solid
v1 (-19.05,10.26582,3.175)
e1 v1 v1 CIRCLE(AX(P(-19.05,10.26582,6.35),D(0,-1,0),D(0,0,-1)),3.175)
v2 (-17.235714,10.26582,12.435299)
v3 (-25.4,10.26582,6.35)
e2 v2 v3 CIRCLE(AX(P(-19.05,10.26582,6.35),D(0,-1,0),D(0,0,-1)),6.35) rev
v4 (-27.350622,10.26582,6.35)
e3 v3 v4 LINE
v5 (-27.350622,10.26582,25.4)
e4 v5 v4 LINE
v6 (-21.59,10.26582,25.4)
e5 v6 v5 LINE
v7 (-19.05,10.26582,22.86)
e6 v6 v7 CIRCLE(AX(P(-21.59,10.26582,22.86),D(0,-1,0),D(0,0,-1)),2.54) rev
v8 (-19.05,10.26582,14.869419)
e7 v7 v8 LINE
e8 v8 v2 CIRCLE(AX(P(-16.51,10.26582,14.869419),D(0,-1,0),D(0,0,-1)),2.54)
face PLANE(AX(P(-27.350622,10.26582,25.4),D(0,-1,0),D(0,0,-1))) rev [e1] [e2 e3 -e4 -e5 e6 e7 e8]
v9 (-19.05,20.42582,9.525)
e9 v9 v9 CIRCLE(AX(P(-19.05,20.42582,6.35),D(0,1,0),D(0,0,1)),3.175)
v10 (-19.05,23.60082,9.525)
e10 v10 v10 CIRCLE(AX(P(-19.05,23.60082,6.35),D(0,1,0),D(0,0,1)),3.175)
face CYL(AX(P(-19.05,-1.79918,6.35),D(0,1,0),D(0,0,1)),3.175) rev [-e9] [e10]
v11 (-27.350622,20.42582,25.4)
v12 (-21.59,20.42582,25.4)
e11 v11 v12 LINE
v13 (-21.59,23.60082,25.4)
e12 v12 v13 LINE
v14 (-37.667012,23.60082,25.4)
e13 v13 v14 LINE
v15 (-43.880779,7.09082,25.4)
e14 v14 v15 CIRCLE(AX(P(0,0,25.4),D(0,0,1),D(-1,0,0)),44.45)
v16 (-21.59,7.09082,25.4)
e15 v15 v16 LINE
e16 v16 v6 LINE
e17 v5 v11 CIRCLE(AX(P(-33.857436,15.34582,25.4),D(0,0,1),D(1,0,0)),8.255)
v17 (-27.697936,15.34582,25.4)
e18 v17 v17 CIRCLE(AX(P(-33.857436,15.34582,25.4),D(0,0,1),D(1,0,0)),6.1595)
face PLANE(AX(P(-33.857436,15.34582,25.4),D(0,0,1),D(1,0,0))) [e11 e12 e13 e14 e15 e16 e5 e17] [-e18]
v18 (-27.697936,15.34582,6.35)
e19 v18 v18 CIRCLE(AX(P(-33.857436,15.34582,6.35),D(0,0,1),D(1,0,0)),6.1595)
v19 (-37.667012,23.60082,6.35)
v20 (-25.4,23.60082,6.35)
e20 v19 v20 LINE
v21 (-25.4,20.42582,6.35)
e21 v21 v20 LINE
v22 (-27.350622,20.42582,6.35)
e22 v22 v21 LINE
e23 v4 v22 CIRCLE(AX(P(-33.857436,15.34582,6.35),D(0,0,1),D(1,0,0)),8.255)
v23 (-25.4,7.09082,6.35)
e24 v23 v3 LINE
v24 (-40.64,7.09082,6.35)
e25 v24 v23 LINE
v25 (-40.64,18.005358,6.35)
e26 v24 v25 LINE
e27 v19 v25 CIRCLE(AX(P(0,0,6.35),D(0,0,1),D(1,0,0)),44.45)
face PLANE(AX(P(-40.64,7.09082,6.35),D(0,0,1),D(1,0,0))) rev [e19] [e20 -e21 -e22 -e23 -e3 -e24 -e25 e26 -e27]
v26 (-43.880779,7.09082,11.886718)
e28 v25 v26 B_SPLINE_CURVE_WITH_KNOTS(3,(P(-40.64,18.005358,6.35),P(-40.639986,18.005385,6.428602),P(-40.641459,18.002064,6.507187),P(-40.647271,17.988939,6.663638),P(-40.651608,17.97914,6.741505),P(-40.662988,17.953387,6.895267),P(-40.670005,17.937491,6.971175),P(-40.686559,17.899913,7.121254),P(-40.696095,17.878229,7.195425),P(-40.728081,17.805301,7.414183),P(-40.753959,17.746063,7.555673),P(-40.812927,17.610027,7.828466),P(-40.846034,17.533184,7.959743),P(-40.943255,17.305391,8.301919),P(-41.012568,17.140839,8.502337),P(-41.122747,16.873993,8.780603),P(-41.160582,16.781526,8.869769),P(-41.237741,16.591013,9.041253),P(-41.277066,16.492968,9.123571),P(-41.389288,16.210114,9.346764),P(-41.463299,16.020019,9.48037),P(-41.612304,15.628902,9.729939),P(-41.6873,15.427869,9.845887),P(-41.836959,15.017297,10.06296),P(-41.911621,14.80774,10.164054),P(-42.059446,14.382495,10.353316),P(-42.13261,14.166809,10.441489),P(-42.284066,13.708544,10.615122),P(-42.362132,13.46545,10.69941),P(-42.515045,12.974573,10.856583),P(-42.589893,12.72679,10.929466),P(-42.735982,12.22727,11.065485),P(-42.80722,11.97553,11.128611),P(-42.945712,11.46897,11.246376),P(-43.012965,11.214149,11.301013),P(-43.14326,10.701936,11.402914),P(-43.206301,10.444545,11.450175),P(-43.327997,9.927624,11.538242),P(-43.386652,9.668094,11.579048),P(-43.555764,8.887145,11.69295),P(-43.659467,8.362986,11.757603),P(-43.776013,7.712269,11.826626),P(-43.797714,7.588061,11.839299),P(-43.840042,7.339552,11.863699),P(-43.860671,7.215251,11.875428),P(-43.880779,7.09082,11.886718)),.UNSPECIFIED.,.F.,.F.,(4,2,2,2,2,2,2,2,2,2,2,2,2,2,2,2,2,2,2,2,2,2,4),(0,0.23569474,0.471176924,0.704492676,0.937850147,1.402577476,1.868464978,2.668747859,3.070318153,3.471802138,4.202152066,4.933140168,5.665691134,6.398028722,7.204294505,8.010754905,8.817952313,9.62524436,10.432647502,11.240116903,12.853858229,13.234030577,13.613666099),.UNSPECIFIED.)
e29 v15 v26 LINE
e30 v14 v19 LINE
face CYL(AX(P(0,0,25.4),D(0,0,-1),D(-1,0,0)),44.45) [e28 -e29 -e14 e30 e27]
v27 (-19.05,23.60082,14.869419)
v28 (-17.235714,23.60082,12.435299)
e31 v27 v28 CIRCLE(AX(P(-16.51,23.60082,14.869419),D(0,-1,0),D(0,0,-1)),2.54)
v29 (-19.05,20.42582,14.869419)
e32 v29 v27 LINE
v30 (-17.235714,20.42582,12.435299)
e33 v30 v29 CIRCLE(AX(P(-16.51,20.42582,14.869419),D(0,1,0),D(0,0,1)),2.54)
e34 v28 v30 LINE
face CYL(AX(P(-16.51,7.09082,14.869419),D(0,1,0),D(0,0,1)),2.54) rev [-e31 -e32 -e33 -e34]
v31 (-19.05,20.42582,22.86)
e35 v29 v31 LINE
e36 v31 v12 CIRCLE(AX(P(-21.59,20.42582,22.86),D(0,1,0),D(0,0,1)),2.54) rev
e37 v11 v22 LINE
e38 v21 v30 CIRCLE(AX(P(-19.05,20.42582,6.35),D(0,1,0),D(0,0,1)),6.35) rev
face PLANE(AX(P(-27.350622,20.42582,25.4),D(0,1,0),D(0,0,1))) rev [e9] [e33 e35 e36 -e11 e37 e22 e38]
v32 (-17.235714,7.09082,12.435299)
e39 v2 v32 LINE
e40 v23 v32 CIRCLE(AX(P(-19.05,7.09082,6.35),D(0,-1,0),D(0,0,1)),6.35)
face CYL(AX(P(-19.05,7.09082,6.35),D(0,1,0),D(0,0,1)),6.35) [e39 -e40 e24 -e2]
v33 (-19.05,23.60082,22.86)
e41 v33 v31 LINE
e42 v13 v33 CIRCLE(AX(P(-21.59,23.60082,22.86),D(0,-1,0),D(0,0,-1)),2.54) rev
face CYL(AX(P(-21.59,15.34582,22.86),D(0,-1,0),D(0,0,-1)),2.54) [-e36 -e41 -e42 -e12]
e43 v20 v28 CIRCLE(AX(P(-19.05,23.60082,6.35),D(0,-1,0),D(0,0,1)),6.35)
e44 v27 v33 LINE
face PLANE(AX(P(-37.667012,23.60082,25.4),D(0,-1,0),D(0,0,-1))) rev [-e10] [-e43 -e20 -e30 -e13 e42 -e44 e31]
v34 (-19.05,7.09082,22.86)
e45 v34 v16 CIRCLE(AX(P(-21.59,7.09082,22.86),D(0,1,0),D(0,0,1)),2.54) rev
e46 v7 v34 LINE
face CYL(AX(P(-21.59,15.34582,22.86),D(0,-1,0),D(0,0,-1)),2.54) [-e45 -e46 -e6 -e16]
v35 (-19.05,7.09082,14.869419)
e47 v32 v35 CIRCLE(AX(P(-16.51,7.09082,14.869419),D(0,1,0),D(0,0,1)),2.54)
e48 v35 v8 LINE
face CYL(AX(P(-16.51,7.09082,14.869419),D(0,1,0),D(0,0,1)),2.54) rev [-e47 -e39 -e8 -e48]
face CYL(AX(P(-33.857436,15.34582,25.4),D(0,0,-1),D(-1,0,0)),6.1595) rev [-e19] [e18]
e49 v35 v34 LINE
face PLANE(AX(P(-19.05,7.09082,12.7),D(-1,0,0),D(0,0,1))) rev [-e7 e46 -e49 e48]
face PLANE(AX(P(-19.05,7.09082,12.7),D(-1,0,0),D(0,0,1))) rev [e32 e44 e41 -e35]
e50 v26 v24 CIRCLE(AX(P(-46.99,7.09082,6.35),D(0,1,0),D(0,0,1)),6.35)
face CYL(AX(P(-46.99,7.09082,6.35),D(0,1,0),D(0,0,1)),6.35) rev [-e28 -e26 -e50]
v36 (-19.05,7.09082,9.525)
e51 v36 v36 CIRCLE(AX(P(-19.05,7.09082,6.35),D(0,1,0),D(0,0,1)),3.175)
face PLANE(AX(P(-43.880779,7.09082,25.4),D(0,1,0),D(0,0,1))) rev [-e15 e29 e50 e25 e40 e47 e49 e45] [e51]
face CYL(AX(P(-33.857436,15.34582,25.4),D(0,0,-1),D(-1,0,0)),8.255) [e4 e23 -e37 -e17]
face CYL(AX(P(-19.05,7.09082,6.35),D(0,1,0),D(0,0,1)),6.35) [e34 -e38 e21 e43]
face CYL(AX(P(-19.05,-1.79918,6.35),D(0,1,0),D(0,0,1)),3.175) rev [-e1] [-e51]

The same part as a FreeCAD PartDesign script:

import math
import FreeCAD as App
import Part
import Sketcher

V = App.Vector
Q = App.Units.Quantity


def edges_at(feature, points):
    """Names of the edges that pass closest to the given points."""
    edges = feature.Shape.Edges
    near = lambda p: min(range(len(edges)), key=lambda i: edges[i].distToShape(Part.Vertex(*p))[0])
    return sorted({f"Edge{near(p) + 1}" for p in points})

doc = App.newDocument("Part")
params = doc.addObject("Spreadsheet::Sheet", "Params")
for row, (alias, value) in enumerate([
    ("sketch1_radius", "1.75 in"),
    ("sketch1_diameter", "0.485 in"),
    ("sketch1_radius2", "0.325 in"),
    ("sketch1_height", "0.125 in"),
    ("pad1_length", "1 in"),
    ("sketch2_diameter", "0.25 in"),
    ("pocket1_length", "1 in"),
    ("sketch3_radius", "0.25 in"),
    ("sketch3_width", "0.6 in"),
    ("sketch3_height", "0.5 in"),
    ("sketch4_diameter", "0.5 in"),
    ("sketch4_diameter2", "0.25 in"),
    ("pad2_length", "0.125 in"),
    ("sketch5_diameter", "0.5 in"),
    ("sketch5_diameter2", "0.25 in"),
    ("pad3_length", "0.125 in"),
    ("fillet_radius", "0.1 in"),
    ("fillet2_radius", "0.1 in"),
], start=1):
    params.set(f"A{row}", alias)
    params.set(f"B{row}", "=" + value)
    params.setAlias(f"B{row}", alias)

body = doc.addObject("PartDesign::Body", "Body")

# Sketch on XY plane
sketch1 = body.newObject("Sketcher::SketchObject", "Sketch")
sketch1.AttachmentSupport = (doc.getObject("XY_Plane"), [""])
sketch1.MapMode = "FlatFace"
sketch1.addGeometry(Part.LineSegment(V(-13.4, 23.6, 0), V(-37.7, 23.6, 0)), False)
sketch1.addGeometry(Part.ArcOfCircle(Part.Circle(V(0, 0, 0), V(0, 0, 1), 44.5), math.radians(148), math.radians(171)), False)
sketch1.addGeometry(Part.LineSegment(V(-43.9, 7.1, 0), V(-13.4, 7.1, 0)), False)
sketch1.addGeometry(Part.LineSegment(V(-13.4, 7.1, 0), V(-13.4, 10.3, 0)), False)
sketch1.addGeometry(Part.LineSegment(V(-13.4, 10.3, 0), V(-27.4, 10.3, 0)), False)
sketch1.addGeometry(Part.ArcOfCircle(Part.Circle(V(-33.9, 15.3, 0), V(0, 0, 1), 8.3), math.radians(-38), math.radians(38)), False)
sketch1.addGeometry(Part.LineSegment(V(-27.4, 20.4, 0), V(-13.4, 20.4, 0)), False)
sketch1.addGeometry(Part.LineSegment(V(-13.4, 20.4, 0), V(-13.4, 23.6, 0)), False)
sketch1.addGeometry(Part.Circle(V(-33.9, 15.3, 0), V(0, 0, 1), 6.2), False)
sketch1.addConstraint(Sketcher.Constraint("Coincident", 0, 2, 1, 1))
sketch1.addConstraint(Sketcher.Constraint("Coincident", 1, 2, 2, 1))
sketch1.addConstraint(Sketcher.Constraint("Coincident", 2, 2, 3, 1))
sketch1.addConstraint(Sketcher.Constraint("Coincident", 3, 2, 4, 1))
sketch1.addConstraint(Sketcher.Constraint("Coincident", 4, 2, 5, 1))
sketch1.addConstraint(Sketcher.Constraint("Coincident", 5, 2, 6, 1))
sketch1.addConstraint(Sketcher.Constraint("Coincident", 6, 2, 7, 1))
sketch1.addConstraint(Sketcher.Constraint("Coincident", 7, 2, 0, 1))
sketch1.addConstraint(Sketcher.Constraint("Horizontal", 0))
sketch1.addConstraint(Sketcher.Constraint("Horizontal", 2))
sketch1.addConstraint(Sketcher.Constraint("Vertical", 3))
sketch1.addConstraint(Sketcher.Constraint("Horizontal", 4))
sketch1.addConstraint(Sketcher.Constraint("Horizontal", 6))
sketch1.addConstraint(Sketcher.Constraint("Vertical", 7))
sketch1.addConstraint(Sketcher.Constraint("Coincident", 1, 3, -1, 1))
sketch1.addConstraint(Sketcher.Constraint("Coincident", 8, 3, 5, 3))
sketch1.addConstraint(Sketcher.Constraint("Vertical", 4, 2, 5, 2))
sketch1.addConstraint(Sketcher.Constraint("Vertical", 3, 2, 6, 2))
sketch1.addConstraint(Sketcher.Constraint("Equal", 3, 7))
sketch1.addConstraint(Sketcher.Constraint("Radius", 1, Q("1.75 in")))
sketch1.addConstraint(Sketcher.Constraint("Diameter", 8, Q("0.485 in")))
sketch1.addConstraint(Sketcher.Constraint("Radius", 5, Q("0.325 in")))
sketch1.addConstraint(Sketcher.Constraint("DistanceY", 3, 2, 5, 3, Q("0.2 in")))
sketch1.addConstraint(Sketcher.Constraint("DistanceY", 3, 1, 3, 2, Q("0.125 in")))
sketch1.addConstraint(Sketcher.Constraint("DistanceX", 0, 2, 0, 1, 24.265198))
sketch1.addConstraint(Sketcher.Constraint("DistanceX", 4, 2, 4, 1, 13.948808))
sketch1.addConstraint(Sketcher.Constraint("DistanceX", 2, 1, 2, 2, 30.478965))
sketch1.setExpression("Constraints[19]", "Params.sketch1_radius")
sketch1.setExpression("Constraints[20]", "Params.sketch1_diameter")
sketch1.setExpression("Constraints[21]", "Params.sketch1_radius2")
sketch1.setExpression("Constraints[23]", "Params.sketch1_height")
pad1 = body.newObject("PartDesign::Pad", "Pad")
pad1.Profile = sketch1
pad1.setExpression("Length", "Params.pad1_length")

# Sketch on XZ plane
sketch2 = body.newObject("Sketcher::SketchObject", "Sketch001")
sketch2.AttachmentSupport = (doc.getObject("XZ_Plane"), [""])
sketch2.MapMode = "FlatFace"
sketch2.AttachmentOffset = App.Placement(V(0, 0, -23.60082), App.Rotation())
sketch2.addGeometry(Part.Circle(V(-19.1, 6.3, 0), V(0, 0, 1), 3.2), False)
sketch2.addConstraint(Sketcher.Constraint("Diameter", 0, Q("0.25 in")))
sketch2.addConstraint(Sketcher.Constraint("DistanceX", 0, 3, -1, 1, Q("0.75 in")))
sketch2.addConstraint(Sketcher.Constraint("DistanceY", -1, 1, 0, 3, Q("0.25 in")))
sketch2.setExpression("Constraints[0]", "Params.sketch2_diameter")
pocket1 = body.newObject("PartDesign::Pocket", "Pocket")
pocket1.Profile = sketch2
pocket1.setExpression("Length", "Params.pocket1_length")
pocket1.Reversed = True

# Sketch on XZ plane
sketch3 = body.newObject("Sketcher::SketchObject", "Sketch002")
sketch3.AttachmentSupport = (doc.getObject("XZ_Plane"), [""])
sketch3.MapMode = "FlatFace"
sketch3.AttachmentOffset = App.Placement(V(0, 0, -23.60082), App.Rotation())
sketch3.addGeometry(Part.LineSegment(V(-41, 0, 0), V(-47, 0, 0)), False)
sketch3.addGeometry(Part.ArcOfCircle(Part.Circle(V(-47, 6, 0), V(0, 0, 1), 6), math.radians(0), math.radians(270)), False)
sketch3.addGeometry(Part.LineSegment(V(-41, 6, 0), V(-25, 6, 0)), False)
sketch3.addGeometry(Part.ArcOfCircle(Part.Circle(V(-19, 6, 0), V(0, 0, 1), 6), math.radians(180), math.radians(450)), False)
sketch3.addGeometry(Part.LineSegment(V(-19, 13, 0), V(-19, 25, 0)), False)
sketch3.addGeometry(Part.LineSegment(V(-19, 25, 0), V(-13, 25, 0)), False)
sketch3.addGeometry(Part.LineSegment(V(-13, 25, 0), V(-10, 21, 0)), False)
sketch3.addGeometry(Part.LineSegment(V(-10, 21, 0), V(-9, -2, 0)), False)
sketch3.addGeometry(Part.LineSegment(V(-9, -2, 0), V(-25, -3, 0)), False)
sketch3.addGeometry(Part.LineSegment(V(-25, -3, 0), V(-41, 0, 0)), False)
sketch3.addConstraint(Sketcher.Constraint("Tangent", 0, 2, 1, 2))
sketch3.addConstraint(Sketcher.Constraint("Coincident", 1, 1, 2, 1))
sketch3.addConstraint(Sketcher.Constraint("Coincident", 2, 2, 3, 1))
sketch3.addConstraint(Sketcher.Constraint("Coincident", 3, 2, 4, 1))
sketch3.addConstraint(Sketcher.Constraint("Coincident", 4, 2, 5, 1))
sketch3.addConstraint(Sketcher.Constraint("Coincident", 5, 2, 6, 1))
sketch3.addConstraint(Sketcher.Constraint("Coincident", 6, 2, 7, 1))
sketch3.addConstraint(Sketcher.Constraint("Coincident", 7, 2, 8, 1))
sketch3.addConstraint(Sketcher.Constraint("Coincident", 8, 2, 9, 1))
sketch3.addConstraint(Sketcher.Constraint("Coincident", 9, 2, 0, 1))
sketch3.addConstraint(Sketcher.Constraint("Horizontal", 0))
sketch3.addConstraint(Sketcher.Constraint("Horizontal", 2))
sketch3.addConstraint(Sketcher.Constraint("Vertical", 4))
sketch3.addConstraint(Sketcher.Constraint("Horizontal", 5))
sketch3.addConstraint(Sketcher.Constraint("Equal", 1, 3))
sketch3.addConstraint(Sketcher.Constraint("PointOnObject", 0, 2, -1))
sketch3.addConstraint(Sketcher.Constraint("Horizontal", 1, 3, 3, 3))
sketch3.addConstraint(Sketcher.Constraint("Horizontal", 3, 3, 1, 1))
sketch3.addConstraint(Sketcher.Constraint("Vertical", 2, 2, 8, 2))
sketch3.addConstraint(Sketcher.Constraint("Vertical", 1, 1, 9, 2))
sketch3.addConstraint(Sketcher.Constraint("Radius", 1, Q("0.25 in")))
sketch3.addConstraint(Sketcher.Constraint("DistanceX", 2, 1, 2, 2, Q("0.6 in")))
sketch3.addConstraint(Sketcher.Constraint("DistanceY", 4, 1, 4, 2, Q("0.5 in")))
sketch3.addConstraint(Sketcher.Constraint("DistanceX", 2, 2, -1, 1, Q("1 in")))
sketch3.addConstraint(Sketcher.Constraint("DistanceX", 1, 3, 3, 2, Q("1.1 in")))
sketch3.addConstraint(Sketcher.Constraint("Distance", 8, 16.3837))
sketch3.addConstraint(Sketcher.Constraint("Distance", 7, 23.589378))
sketch3.addConstraint(Sketcher.Constraint("DistanceX", 5, 1, 5, 2, 5.648186))
sketch3.addConstraint(Sketcher.Constraint("DistanceX", 7, 2, -1, 1, 9.028029))
sketch3.addConstraint(Sketcher.Constraint("DistanceY", 7, 2, 6, 2, 23.553439))
sketch3.addConstraint(Sketcher.Constraint("Distance", 6, 5.296815))
sketch3.setExpression("Constraints[20]", "Params.sketch3_radius")
sketch3.setExpression("Constraints[21]", "Params.sketch3_width")
sketch3.setExpression("Constraints[22]", "Params.sketch3_height")
pocket2 = body.newObject("PartDesign::Pocket", "Pocket001")
pocket2.Profile = sketch3
pocket2.Type = "ThroughAll"
pocket2.Reversed = True

# Sketch on XZ plane
sketch4 = body.newObject("Sketcher::SketchObject", "Sketch003")
sketch4.AttachmentSupport = (doc.getObject("XZ_Plane"), [""])
sketch4.MapMode = "FlatFace"
sketch4.AttachmentOffset = App.Placement(V(0, 0, -23.60082), App.Rotation())
sketch4.addGeometry(Part.Circle(V(-19.1, 6.3, 0), V(0, 0, 1), 6.3), False)
sketch4.addGeometry(Part.Circle(V(-19.1, 6.3, 0), V(0, 0, 1), 3.2), False)
sketch4.addConstraint(Sketcher.Constraint("Coincident", 1, 3, 0, 3))
sketch4.addConstraint(Sketcher.Constraint("Diameter", 0, Q("0.5 in")))
sketch4.addConstraint(Sketcher.Constraint("Diameter", 1, Q("0.25 in")))
sketch4.addConstraint(Sketcher.Constraint("DistanceX", 0, 3, -1, 1, Q("0.75 in")))
sketch4.addConstraint(Sketcher.Constraint("DistanceY", -1, 1, 0, 3, Q("0.25 in")))
sketch4.setExpression("Constraints[1]", "Params.sketch4_diameter")
sketch4.setExpression("Constraints[2]", "Params.sketch4_diameter2")
pad2 = body.newObject("PartDesign::Pad", "Pad001")
pad2.Profile = sketch4
pad2.setExpression("Length", "Params.pad2_length")

# Sketch on XZ plane
sketch5 = body.newObject("Sketcher::SketchObject", "Sketch004")
sketch5.AttachmentSupport = (doc.getObject("XZ_Plane"), [""])
sketch5.MapMode = "FlatFace"
sketch5.AttachmentOffset = App.Placement(V(0, 0, -7.09082), App.Rotation())
sketch5.addGeometry(Part.Circle(V(-19.1, 6.3, 0), V(0, 0, 1), 6.3), False)
sketch5.addGeometry(Part.Circle(V(-19.1, 6.3, 0), V(0, 0, 1), 3.2), False)
sketch5.addConstraint(Sketcher.Constraint("Coincident", 1, 3, 0, 3))
sketch5.addConstraint(Sketcher.Constraint("Diameter", 0, Q("0.5 in")))
sketch5.addConstraint(Sketcher.Constraint("Diameter", 1, Q("0.25 in")))
sketch5.addConstraint(Sketcher.Constraint("DistanceX", 0, 3, -1, 1, Q("0.75 in")))
sketch5.addConstraint(Sketcher.Constraint("DistanceY", -1, 1, 0, 3, Q("0.25 in")))
sketch5.setExpression("Constraints[1]", "Params.sketch5_diameter")
sketch5.setExpression("Constraints[2]", "Params.sketch5_diameter2")
pad3 = body.newObject("PartDesign::Pad", "Pad002")
pad3.Profile = sketch5
pad3.setExpression("Length", "Params.pad3_length")
pad3.Reversed = True
doc.recompute()

fillet = body.newObject("PartDesign::Fillet", "Fillet")
fillet.Base = (pad3, edges_at(pad3, [(-19.05, 22.013, 12.7), (-19.05, 8.678, 12.7)]))
fillet.setExpression("Radius", "Params.fillet_radius")
doc.recompute()

fillet2 = body.newObject("PartDesign::Fillet", "Fillet001")
fillet2.Base = (fillet, edges_at(fillet, [(-19.05, 22.013, 25.4), (-19.05, 8.678, 25.4)]))
fillet2.setExpression("Radius", "Params.fillet2_radius")

doc.recompute()
